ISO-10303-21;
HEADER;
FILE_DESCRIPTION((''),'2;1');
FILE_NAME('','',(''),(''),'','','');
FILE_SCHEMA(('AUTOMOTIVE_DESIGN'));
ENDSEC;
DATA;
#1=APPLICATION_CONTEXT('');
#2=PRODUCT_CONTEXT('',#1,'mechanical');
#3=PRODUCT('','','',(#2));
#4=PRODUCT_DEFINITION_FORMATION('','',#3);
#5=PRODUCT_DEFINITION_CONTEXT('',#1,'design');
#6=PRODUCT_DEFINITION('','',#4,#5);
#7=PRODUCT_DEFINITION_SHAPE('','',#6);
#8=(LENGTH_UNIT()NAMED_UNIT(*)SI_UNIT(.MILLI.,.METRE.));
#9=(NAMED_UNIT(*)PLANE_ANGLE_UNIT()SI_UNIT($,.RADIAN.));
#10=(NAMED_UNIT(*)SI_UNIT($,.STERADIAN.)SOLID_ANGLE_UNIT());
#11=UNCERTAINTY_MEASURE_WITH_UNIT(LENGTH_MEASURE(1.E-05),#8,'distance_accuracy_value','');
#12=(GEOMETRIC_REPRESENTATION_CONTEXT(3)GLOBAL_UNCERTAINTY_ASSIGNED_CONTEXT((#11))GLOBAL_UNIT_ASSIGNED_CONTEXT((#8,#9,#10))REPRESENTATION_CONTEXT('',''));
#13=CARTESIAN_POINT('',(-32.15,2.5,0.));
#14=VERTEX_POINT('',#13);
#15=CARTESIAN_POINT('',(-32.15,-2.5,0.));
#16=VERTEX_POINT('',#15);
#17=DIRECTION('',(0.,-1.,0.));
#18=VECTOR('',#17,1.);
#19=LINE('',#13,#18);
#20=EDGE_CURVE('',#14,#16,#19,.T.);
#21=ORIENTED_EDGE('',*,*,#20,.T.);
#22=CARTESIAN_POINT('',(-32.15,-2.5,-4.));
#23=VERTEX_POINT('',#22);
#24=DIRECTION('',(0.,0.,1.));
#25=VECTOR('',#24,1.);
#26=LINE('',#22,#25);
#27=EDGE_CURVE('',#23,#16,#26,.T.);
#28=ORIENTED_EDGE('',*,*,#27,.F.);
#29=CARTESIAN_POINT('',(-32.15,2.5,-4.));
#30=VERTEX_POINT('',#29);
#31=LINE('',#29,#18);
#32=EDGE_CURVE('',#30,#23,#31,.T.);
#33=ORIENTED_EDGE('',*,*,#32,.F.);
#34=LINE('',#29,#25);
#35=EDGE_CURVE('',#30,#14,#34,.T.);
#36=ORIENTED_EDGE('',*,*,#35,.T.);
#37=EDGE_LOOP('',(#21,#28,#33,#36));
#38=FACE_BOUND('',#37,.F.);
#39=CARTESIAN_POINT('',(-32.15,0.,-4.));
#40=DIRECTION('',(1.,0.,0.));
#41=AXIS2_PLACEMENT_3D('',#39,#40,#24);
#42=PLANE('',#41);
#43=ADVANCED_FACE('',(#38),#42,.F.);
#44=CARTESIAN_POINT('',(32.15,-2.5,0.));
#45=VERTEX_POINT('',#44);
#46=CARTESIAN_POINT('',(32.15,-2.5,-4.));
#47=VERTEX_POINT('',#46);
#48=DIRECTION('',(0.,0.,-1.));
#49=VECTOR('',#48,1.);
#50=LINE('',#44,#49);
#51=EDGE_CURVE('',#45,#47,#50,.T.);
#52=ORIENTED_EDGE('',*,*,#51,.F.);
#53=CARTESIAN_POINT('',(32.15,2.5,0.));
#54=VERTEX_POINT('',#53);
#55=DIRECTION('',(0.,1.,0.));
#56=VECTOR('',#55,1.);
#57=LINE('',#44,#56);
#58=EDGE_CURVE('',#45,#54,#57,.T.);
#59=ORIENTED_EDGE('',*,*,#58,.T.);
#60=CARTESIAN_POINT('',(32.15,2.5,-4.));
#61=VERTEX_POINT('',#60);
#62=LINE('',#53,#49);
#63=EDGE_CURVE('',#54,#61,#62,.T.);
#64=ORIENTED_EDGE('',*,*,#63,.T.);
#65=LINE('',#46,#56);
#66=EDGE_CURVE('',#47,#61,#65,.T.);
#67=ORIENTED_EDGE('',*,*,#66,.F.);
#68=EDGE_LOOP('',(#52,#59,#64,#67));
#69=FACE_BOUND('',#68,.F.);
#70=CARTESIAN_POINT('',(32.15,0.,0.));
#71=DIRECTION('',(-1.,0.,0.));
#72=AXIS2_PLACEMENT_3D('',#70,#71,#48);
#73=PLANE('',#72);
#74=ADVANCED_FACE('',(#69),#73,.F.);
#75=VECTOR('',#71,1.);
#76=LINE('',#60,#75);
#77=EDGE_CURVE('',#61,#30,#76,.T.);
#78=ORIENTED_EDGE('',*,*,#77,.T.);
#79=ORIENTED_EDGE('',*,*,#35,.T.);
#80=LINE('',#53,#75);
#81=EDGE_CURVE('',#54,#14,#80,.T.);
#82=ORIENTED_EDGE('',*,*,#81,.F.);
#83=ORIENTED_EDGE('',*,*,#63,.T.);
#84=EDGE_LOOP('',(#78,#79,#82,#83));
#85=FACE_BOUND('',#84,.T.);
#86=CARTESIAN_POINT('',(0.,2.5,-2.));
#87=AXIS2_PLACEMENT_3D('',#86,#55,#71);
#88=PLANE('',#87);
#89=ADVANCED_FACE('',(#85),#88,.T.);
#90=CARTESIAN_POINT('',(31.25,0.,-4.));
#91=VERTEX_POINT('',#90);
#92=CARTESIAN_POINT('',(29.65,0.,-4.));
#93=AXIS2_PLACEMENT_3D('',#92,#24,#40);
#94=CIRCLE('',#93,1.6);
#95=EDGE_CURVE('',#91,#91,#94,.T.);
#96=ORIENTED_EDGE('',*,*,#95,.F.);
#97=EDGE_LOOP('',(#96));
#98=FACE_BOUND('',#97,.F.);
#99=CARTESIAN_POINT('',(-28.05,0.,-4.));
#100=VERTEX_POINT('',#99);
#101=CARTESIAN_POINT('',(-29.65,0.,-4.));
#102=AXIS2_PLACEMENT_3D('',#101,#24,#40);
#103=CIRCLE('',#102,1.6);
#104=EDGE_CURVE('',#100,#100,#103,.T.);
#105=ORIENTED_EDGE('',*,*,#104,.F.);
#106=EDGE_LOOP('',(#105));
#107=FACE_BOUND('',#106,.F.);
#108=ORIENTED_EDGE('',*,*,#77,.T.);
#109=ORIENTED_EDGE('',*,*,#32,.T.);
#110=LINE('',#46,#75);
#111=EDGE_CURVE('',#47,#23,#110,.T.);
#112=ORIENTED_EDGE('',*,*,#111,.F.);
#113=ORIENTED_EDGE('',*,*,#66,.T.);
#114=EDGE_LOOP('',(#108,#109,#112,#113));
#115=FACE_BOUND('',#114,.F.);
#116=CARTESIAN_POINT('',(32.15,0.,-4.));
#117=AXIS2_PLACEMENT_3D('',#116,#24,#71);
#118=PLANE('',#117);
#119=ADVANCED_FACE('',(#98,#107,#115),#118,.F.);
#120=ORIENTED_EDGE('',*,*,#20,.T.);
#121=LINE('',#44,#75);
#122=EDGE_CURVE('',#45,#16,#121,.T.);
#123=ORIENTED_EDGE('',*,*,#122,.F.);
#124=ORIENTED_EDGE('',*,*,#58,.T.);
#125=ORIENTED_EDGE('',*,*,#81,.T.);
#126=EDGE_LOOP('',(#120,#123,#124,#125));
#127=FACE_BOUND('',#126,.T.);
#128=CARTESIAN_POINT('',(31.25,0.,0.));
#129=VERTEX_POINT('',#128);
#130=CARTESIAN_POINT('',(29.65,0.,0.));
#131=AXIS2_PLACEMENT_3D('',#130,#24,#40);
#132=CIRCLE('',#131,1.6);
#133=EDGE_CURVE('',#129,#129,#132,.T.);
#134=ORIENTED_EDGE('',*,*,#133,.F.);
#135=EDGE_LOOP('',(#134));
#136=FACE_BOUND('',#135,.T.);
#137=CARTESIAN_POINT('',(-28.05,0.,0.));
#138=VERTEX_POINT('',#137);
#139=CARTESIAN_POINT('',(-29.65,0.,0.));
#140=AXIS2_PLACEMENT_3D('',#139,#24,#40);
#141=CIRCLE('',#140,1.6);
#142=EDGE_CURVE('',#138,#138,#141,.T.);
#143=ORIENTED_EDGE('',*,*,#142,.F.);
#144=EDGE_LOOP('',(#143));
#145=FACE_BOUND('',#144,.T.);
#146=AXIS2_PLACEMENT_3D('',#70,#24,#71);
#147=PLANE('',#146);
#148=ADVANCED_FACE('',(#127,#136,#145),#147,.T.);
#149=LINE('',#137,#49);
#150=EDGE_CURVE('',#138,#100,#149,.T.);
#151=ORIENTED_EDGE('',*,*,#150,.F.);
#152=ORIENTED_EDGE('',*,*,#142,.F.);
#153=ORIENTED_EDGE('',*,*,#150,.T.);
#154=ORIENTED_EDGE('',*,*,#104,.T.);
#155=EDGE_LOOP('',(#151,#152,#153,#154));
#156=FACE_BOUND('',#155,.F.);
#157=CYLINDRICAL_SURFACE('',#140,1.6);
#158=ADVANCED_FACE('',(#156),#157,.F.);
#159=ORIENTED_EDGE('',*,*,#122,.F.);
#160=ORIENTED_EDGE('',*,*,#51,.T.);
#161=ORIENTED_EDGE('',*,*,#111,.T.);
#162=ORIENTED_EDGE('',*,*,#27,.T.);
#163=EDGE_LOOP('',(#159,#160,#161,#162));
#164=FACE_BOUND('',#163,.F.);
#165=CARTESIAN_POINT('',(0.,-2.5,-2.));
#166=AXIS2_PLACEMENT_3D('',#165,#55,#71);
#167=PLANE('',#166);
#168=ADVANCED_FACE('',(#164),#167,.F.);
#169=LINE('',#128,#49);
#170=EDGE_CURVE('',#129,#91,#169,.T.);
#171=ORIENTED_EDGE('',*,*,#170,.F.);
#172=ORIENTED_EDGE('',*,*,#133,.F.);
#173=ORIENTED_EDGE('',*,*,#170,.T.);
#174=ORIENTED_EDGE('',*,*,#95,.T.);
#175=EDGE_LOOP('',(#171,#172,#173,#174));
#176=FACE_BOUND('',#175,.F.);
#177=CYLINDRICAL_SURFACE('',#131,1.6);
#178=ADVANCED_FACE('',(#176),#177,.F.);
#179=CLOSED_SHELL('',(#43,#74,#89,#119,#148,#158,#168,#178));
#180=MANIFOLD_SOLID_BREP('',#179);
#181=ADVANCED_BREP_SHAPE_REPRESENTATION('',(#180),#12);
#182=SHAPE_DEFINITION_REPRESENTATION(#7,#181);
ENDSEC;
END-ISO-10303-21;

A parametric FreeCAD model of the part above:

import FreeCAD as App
import Part
import Sketcher
from FreeCAD import Vector
Q = App.Units.Quantity


def add_polygon(sketch, points):
    """Adds a closed chain of lines whose ends are joined by coincident constraints."""
    first, n = sketch.GeometryCount, len(points)
    for a, b in zip(points, points[1:] + points[:1]):
        sketch.addGeometry(Part.LineSegment(App.Vector(*a, 0), App.Vector(*b, 0)), False)
    for i in range(n):
        sketch.addConstraint(Sketcher.Constraint("Coincident", first + i, 2, first + (i + 1) % n, 1))

doc = App.newDocument("Part")
body = doc.addObject("PartDesign::Body", "Body")

sketch1 = body.newObject("Sketcher::SketchObject", "Sketch")
sketch1.AttachmentSupport = (doc.getObject("XZ_Plane"), [""])
sketch1.MapMode = "FlatFace"
add_polygon(sketch1, [(32.1, 0), (-32.1, 0), (-32.1, -4), (32.1, -4)])
sketch1.addConstraint([
    Sketcher.Constraint("Horizontal", 0),
    Sketcher.Constraint("Vertical", 1),
    Sketcher.Constraint("Horizontal", 2),
    Sketcher.Constraint("Vertical", 3),
    Sketcher.Constraint("Symmetric", 0, 2, 3, 2, -1, 1),
    Sketcher.Constraint("DistanceY", 1, 2, 1, 1, Q("4 mm")),
    Sketcher.Constraint("DistanceX", 0, 2, 0, 1, Q("64.3 mm")),
])
pad1 = body.newObject("PartDesign::Pad", "Pad")
pad1.Profile = sketch1
pad1.Length = 5
pad1.Midplane = True

sketch2 = body.newObject("Sketcher::SketchObject", "Sketch001")
sketch2.AttachmentSupport = (doc.getObject("XY_Plane"), [""])
sketch2.MapMode = "FlatFace"
sketch2.addGeometry([
    Part.Circle(Vector(29.6, 0, 0), Vector(0, 0, 1), 1.6),
    Part.Circle(Vector(-29.6, 0, 0), Vector(0, 0, 1), 1.6),
], False)
sketch2.addConstraint([
    Sketcher.Constraint("Equal", 0, 1),
    Sketcher.Constraint("Symmetric", 0, 3, 1, 3, -1, 1),
    Sketcher.Constraint("PointOnObject", 0, 3, -1),
    Sketcher.Constraint("Diameter", 0, Q("3.2 mm")),
    Sketcher.Constraint("DistanceX", 1, 3, 0, 3, Q("59.3 mm")),
])
pocket1 = body.newObject("PartDesign::Pocket", "Pocket")
pocket1.Profile = sketch2
pocket1.Type = "ThroughAll"

doc.recompute()
